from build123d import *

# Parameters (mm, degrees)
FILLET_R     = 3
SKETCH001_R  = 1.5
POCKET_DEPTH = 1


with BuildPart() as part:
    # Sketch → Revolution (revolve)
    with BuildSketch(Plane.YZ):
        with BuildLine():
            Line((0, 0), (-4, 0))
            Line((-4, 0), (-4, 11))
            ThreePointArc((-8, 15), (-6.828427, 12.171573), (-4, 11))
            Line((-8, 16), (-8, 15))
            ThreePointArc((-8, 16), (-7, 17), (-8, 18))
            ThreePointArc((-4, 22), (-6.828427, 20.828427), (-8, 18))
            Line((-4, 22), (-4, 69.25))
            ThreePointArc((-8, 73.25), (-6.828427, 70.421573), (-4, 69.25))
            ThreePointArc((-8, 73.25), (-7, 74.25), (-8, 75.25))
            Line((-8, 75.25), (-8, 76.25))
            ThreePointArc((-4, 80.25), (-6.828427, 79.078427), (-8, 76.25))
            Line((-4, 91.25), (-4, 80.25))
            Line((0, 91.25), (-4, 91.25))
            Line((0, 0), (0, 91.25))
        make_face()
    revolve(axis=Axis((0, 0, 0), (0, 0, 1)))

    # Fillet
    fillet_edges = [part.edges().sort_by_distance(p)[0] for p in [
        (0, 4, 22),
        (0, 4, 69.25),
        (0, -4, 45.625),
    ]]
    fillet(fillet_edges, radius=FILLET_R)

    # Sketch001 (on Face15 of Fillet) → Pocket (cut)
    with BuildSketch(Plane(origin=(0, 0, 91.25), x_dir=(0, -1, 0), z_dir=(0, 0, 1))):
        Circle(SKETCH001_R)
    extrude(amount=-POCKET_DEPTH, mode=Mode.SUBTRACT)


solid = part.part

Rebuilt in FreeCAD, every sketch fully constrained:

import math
import FreeCAD as App
import Part
import Sketcher

V = App.Vector


def edges_at(feature, points):
    """Names of the edges that pass closest to the given points."""
    edges = feature.Shape.Edges
    near = lambda p: min(range(len(edges)), key=lambda i: edges[i].distToShape(Part.Vertex(*p))[0])
    return sorted({f"Edge{near(p) + 1}" for p in points})

doc = App.newDocument("Part")
params = doc.addObject("Spreadsheet::Sheet", "Params")
for row, (alias, value) in enumerate([
    ("sketch1_radius", "4 mm"),
    ("sketch1_radius2", "1 mm"),
    ("sketch1_width", "4 mm"),
    ("sketch1_height", "11 mm"),
    ("sketch1_height2", "1 mm"),
    ("revolution_angle", "360 deg"),
    ("fillet_radius", "3 mm"),
    ("sketch2_diameter", "3 mm"),
    ("pocket1_length", "1 mm"),
], start=1):
    params.set(f"A{row}", alias)
    params.set(f"B{row}", "=" + value)
    params.setAlias(f"B{row}", alias)

body = doc.addObject("PartDesign::Body", "Body")

# Sketch on YZ plane
sketch1 = body.newObject("Sketcher::SketchObject", "Sketch")
sketch1.AttachmentSupport = (doc.getObject("YZ_Plane"), [""])
sketch1.MapMode = "FlatFace"
sketch1.addGeometry([
    Part.LineSegment(V(-4, 0, 0), V(0, 0, 0)),  # 0
    Part.LineSegment(V(0, 0, 0), V(0, 91.25, 0)),  # 1
    Part.LineSegment(V(0, 91.25, 0), V(-4, 91.25, 0)),  # 2
    Part.LineSegment(V(-4, 91.25, 0), V(-4, 80.25, 0)),  # 3
    Part.ArcOfCircle(Part.Circle(V(-4, 76.25, 0), V(0, 0, 1), 4), math.radians(90.000006), math.radians(179.999994)),  # 4
    Part.LineSegment(V(-8, 76.25, 0), V(-8, 75.25, 0)),  # 5
    Part.ArcOfCircle(Part.Circle(V(-8, 74.25, 0), V(0, 0, 1), 1), math.radians(-90), math.radians(90)),  # 6
    Part.ArcOfCircle(Part.Circle(V(-4, 73.25, 0), V(0, 0, 1), 4), math.radians(-179.999994), math.radians(-90.000006)),  # 7
    Part.LineSegment(V(-4, 69.25, 0), V(-4, 22, 0)),  # 8
    Part.ArcOfCircle(Part.Circle(V(-4, 18, 0), V(0, 0, 1), 4), math.radians(90.000006), math.radians(179.999994)),  # 9
    Part.ArcOfCircle(Part.Circle(V(-8, 17, 0), V(0, 0, 1), 1), math.radians(-90), math.radians(90)),  # 10
    Part.LineSegment(V(-8, 16, 0), V(-8, 15, 0)),  # 11
    Part.ArcOfCircle(Part.Circle(V(-4, 15, 0), V(0, 0, 1), 4), math.radians(-179.999994), math.radians(-90.000006)),  # 12
    Part.LineSegment(V(-4, 11, 0), V(-4, 0, 0)),  # 13
], False)
sketch1.addConstraint([
    Sketcher.Constraint("Coincident", 0, 2, 1, 1),
    Sketcher.Constraint("Coincident", 1, 2, 2, 1),
    Sketcher.Constraint("Coincident", 2, 2, 3, 1),
    Sketcher.Constraint("Coincident", 3, 2, 4, 1),
    Sketcher.Constraint("Tangent", 4, 2, 5, 1),
    Sketcher.Constraint("Coincident", 5, 2, 6, 2),
    Sketcher.Constraint("Coincident", 6, 1, 7, 1),
    Sketcher.Constraint("Coincident", 7, 2, 8, 1),
    Sketcher.Constraint("Coincident", 8, 2, 9, 1),
    Sketcher.Constraint("Coincident", 9, 2, 10, 2),
    Sketcher.Constraint("Coincident", 10, 1, 11, 1),
    Sketcher.Constraint("Tangent", 11, 2, 12, 1),
    Sketcher.Constraint("Coincident", 12, 2, 13, 1),
    Sketcher.Constraint("Coincident", 13, 2, 0, 1),
    Sketcher.Constraint("Horizontal", 0),
    Sketcher.Constraint("Vertical", 1),
    Sketcher.Constraint("Horizontal", 2),
    Sketcher.Constraint("Vertical", 3),
    Sketcher.Constraint("Vertical", 5),
    Sketcher.Constraint("Vertical", 8),
    Sketcher.Constraint("Vertical", 11),
    Sketcher.Constraint("Vertical", 13),
    Sketcher.Constraint("Coincident", 0, 2, -1, 1),
    Sketcher.Constraint("Equal", 4, 7),
    Sketcher.Constraint("Equal", 7, 9),
    Sketcher.Constraint("Equal", 6, 10),
    Sketcher.Constraint("Equal", 9, 12),
    Sketcher.Constraint("Horizontal", 7, 3, 6, 1),
    Sketcher.Constraint("Vertical", 4, 3, 7, 3),
    Sketcher.Constraint("Vertical", 7, 3, 9, 3),
    Sketcher.Constraint("Vertical", 6, 3, 10, 3),
    Sketcher.Constraint("Vertical", 9, 3, 12, 3),
    Sketcher.Constraint("Vertical", 12, 3, 2, 2),
    Sketcher.Constraint("Vertical", 10, 3, 4, 2),
    Sketcher.Constraint("Vertical", 3, 2, 7, 2),
    Sketcher.Constraint("Vertical", 8, 2, 12, 2),
    Sketcher.Constraint("Equal", 5, 11),
    Sketcher.Constraint("Equal", 3, 13),
    Sketcher.Constraint("Radius", 4, 4.0),
    Sketcher.Constraint("Radius", 6, 1.0),
    Sketcher.Constraint("DistanceX", 0, 1, 0, 2, 4.0),
    Sketcher.Constraint("DistanceY", 3, 2, 3, 1, 11.0),
    Sketcher.Constraint("DistanceY", 5, 2, 5, 1, 1.0),
    Sketcher.Constraint("DistanceY", -1, 1, 9, 3, 18.0),
    Sketcher.Constraint("DistanceY", 1, 1, 1, 2, 91.25),
])
sketch1.setExpression("Constraints[38]", "Params.sketch1_radius")
sketch1.setExpression("Constraints[39]", "Params.sketch1_radius2")
sketch1.setExpression("Constraints[40]", "Params.sketch1_width")
sketch1.setExpression("Constraints[41]", "Params.sketch1_height")
sketch1.setExpression("Constraints[42]", "Params.sketch1_height2")
revolution = body.newObject("PartDesign::Revolution", "Revolution")
revolution.Profile = sketch1
revolution.ReferenceAxis = (sketch1, ["V_Axis"])
revolution.setExpression("Angle", "Params.revolution_angle")
doc.recompute()

fillet = body.newObject("PartDesign::Fillet", "Fillet")
fillet.Base = (revolution, edges_at(revolution, [(0, 4, 22), (0, 4, 69.25), (0, -4, 45.625)]))
fillet.setExpression("Radius", "Params.fillet_radius")

# Sketch on XY plane
sketch2 = body.newObject("Sketcher::SketchObject", "Sketch001")
sketch2.AttachmentSupport = (doc.getObject("XY_Plane"), [""])
sketch2.MapMode = "FlatFace"
sketch2.AttachmentOffset = App.Placement(V(0, 0, 91.25), App.Rotation())
sketch2.addGeometry(Part.Circle(V(0, 0, 0), V(0, 0, 1), 1.5), False)
sketch2.addConstraint([
    Sketcher.Constraint("Coincident", 0, 3, -1, 1),
    Sketcher.Constraint("Diameter", 0, 3.0),
])
sketch2.setExpression("Constraints[1]", "Params.sketch2_diameter")
pocket1 = body.newObject("PartDesign::Pocket", "Pocket")
pocket1.Profile = sketch2
pocket1.setExpression("Length", "Params.pocket1_length")

doc.recompute()
